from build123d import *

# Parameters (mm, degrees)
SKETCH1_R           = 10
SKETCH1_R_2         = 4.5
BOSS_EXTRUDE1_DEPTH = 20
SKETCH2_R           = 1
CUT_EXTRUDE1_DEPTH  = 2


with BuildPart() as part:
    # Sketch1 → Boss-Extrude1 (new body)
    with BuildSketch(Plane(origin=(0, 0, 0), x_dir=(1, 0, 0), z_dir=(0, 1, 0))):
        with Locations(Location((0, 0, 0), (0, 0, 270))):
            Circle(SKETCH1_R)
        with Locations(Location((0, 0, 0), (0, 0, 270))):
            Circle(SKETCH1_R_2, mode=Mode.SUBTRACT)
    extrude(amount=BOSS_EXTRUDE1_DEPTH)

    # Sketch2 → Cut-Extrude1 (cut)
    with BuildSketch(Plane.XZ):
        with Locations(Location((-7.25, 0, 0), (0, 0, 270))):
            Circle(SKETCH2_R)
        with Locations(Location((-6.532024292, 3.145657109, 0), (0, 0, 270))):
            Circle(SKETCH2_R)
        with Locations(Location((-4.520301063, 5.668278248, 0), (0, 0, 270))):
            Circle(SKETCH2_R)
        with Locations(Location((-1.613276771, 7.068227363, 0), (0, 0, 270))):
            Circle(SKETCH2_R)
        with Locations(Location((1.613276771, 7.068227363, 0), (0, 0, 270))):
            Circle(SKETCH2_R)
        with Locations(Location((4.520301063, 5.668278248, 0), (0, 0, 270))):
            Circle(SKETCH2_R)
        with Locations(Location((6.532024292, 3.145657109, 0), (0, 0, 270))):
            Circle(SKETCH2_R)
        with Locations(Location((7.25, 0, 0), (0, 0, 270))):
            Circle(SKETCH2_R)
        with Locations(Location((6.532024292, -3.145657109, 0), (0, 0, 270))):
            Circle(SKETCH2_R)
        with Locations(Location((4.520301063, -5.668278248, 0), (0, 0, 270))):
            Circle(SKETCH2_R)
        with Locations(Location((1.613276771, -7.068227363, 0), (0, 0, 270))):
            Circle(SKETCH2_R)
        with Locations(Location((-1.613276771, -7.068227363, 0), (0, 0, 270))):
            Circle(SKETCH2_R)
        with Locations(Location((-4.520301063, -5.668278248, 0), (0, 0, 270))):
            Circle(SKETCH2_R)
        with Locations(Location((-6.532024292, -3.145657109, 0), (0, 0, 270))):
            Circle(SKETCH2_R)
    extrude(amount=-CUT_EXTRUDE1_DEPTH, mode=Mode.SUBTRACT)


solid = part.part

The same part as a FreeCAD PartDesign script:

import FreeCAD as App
import Part
import Sketcher
from FreeCAD import Vector

doc = App.newDocument("Part")
params = doc.addObject("Spreadsheet::Sheet", "Params")
for row, (alias, value) in enumerate([
    ("sketch1_diameter", "20 mm"),
    ("sketch1_diameter2", "9 mm"),
    ("pad1_length", "20 mm"),
    ("sketch2_diameter", "2 mm"),
    ("pocket1_length", "2 mm"),
], start=1):
    params.set(f"A{row}", alias)
    params.set(f"B{row}", "=" + value)
    params.setAlias(f"B{row}", alias)

body = doc.addObject("PartDesign::Body", "Body")

# Sketch on XZ plane
sketch1 = body.newObject("Sketcher::SketchObject", "Sketch")
sketch1.AttachmentSupport = (doc.getObject("XZ_Plane"), [""])
sketch1.MapMode = "FlatFace"
sketch1.addGeometry([
    Part.Circle(Vector(0, 0, 0), Vector(0, 0, 1), 10),
    Part.Circle(Vector(0, 0, 0), Vector(0, 0, 1), 4.5),
], False)
sketch1.addConstraint([
    Sketcher.Constraint("Coincident", 0, 3, -1, 1),
    Sketcher.Constraint("Coincident", 1, 3, -1, 1),
    Sketcher.Constraint("Diameter", 0, 20.0),
    Sketcher.Constraint("Diameter", 1, 9.0),
])
sketch1.setExpression("Constraints[2]", "Params.sketch1_diameter")
sketch1.setExpression("Constraints[3]", "Params.sketch1_diameter2")
pad1 = body.newObject("PartDesign::Pad", "Pad")
pad1.Profile = sketch1
pad1.setExpression("Length", "Params.pad1_length")
pad1.Reversed = True

# Sketch on XZ plane
sketch2 = body.newObject("Sketcher::SketchObject", "Sketch001")
sketch2.AttachmentSupport = (doc.getObject("XZ_Plane"), [""])
sketch2.MapMode = "FlatFace"
sketch2.addGeometry([
    Part.Circle(Vector(-7.2, 0, 0), Vector(0, 0, 1), 1),  # 0
    Part.Circle(Vector(-6.5, 3.1, 0), Vector(0, 0, 1), 1),  # 1
    Part.Circle(Vector(-4.5, 5.7, 0), Vector(0, 0, 1), 1),  # 2
    Part.Circle(Vector(-1.6, 7.1, 0), Vector(0, 0, 1), 1),  # 3
    Part.Circle(Vector(1.6, 7.1, 0), Vector(0, 0, 1), 1),  # 4
    Part.Circle(Vector(4.5, 5.7, 0), Vector(0, 0, 1), 1),  # 5
    Part.Circle(Vector(6.5, 3.1, 0), Vector(0, 0, 1), 1),  # 6
    Part.Circle(Vector(7.2, 0, 0), Vector(0, 0, 1), 1),  # 7
    Part.Circle(Vector(6.5, -3.1, 0), Vector(0, 0, 1), 1),  # 8
    Part.Circle(Vector(4.5, -5.7, 0), Vector(0, 0, 1), 1),  # 9
    Part.Circle(Vector(1.6, -7.1, 0), Vector(0, 0, 1), 1),  # 10
    Part.Circle(Vector(-1.6, -7.1, 0), Vector(0, 0, 1), 1),  # 11
    Part.Circle(Vector(-4.5, -5.7, 0), Vector(0, 0, 1), 1),  # 12
    Part.Circle(Vector(-6.5, -3.1, 0), Vector(0, 0, 1), 1),  # 13
], False)
sketch2.addConstraint([
    Sketcher.Constraint("Equal", 0, 1),
    Sketcher.Constraint("Equal", 1, 2),
    Sketcher.Constraint("Equal", 2, 3),
    Sketcher.Constraint("Equal", 3, 4),
    Sketcher.Constraint("Equal", 4, 5),
    Sketcher.Constraint("Equal", 5, 6),
    Sketcher.Constraint("Equal", 6, 7),
    Sketcher.Constraint("Equal", 7, 8),
    Sketcher.Constraint("Equal", 8, 9),
    Sketcher.Constraint("Equal", 9, 10),
    Sketcher.Constraint("Equal", 10, 11),
    Sketcher.Constraint("Equal", 11, 12),
    Sketcher.Constraint("Equal", 12, 13),
    Sketcher.Constraint("Symmetric", 0, 3, 7, 3, -1, 1),
    Sketcher.Constraint("Symmetric", 1, 3, 8, 3, -1, 1),
    Sketcher.Constraint("Symmetric", 2, 3, 9, 3, -1, 1),
    Sketcher.Constraint("Symmetric", 3, 3, 10, 3, -1, 1),
    Sketcher.Constraint("Symmetric", 4, 3, 11, 3, -1, 1),
    Sketcher.Constraint("Symmetric", 5, 3, 12, 3, -1, 1),
    Sketcher.Constraint("Symmetric", 6, 3, 13, 3, -1, 1),
    Sketcher.Constraint("Symmetric", 3, 3, 4, 3, -2),
    Sketcher.Constraint("Symmetric", 2, 3, 5, 3, -2),
    Sketcher.Constraint("Symmetric", 1, 3, 6, 3, -2),
    Sketcher.Constraint("PointOnObject", 0, 3, -1),
    Sketcher.Constraint("Diameter", 0, 2.0),
    Sketcher.Constraint("DistanceX", 0, 3, -1, 1, 7.25),
    Sketcher.Constraint("DistanceX", 2, 3, -1, 1, 4.520301),
    Sketcher.Constraint("DistanceX", 1, 3, 4, 3, 8.145301),
    Sketcher.Constraint("DistanceY", -1, 1, 2, 3, 5.668278),
    Sketcher.Constraint("DistanceY", 1, 3, 2, 3, 2.522621),
    Sketcher.Constraint("DistanceY", 2, 3, 3, 3, 1.399949),
    Sketcher.Constraint("DistanceX", 1, 3, 6, 3, 13.064049),
])
sketch2.setExpression("Constraints[24]", "Params.sketch2_diameter")
pocket1 = body.newObject("PartDesign::Pocket", "Pocket")
pocket1.Profile = sketch2
pocket1.setExpression("Length", "Params.pocket1_length")

doc.recompute()
